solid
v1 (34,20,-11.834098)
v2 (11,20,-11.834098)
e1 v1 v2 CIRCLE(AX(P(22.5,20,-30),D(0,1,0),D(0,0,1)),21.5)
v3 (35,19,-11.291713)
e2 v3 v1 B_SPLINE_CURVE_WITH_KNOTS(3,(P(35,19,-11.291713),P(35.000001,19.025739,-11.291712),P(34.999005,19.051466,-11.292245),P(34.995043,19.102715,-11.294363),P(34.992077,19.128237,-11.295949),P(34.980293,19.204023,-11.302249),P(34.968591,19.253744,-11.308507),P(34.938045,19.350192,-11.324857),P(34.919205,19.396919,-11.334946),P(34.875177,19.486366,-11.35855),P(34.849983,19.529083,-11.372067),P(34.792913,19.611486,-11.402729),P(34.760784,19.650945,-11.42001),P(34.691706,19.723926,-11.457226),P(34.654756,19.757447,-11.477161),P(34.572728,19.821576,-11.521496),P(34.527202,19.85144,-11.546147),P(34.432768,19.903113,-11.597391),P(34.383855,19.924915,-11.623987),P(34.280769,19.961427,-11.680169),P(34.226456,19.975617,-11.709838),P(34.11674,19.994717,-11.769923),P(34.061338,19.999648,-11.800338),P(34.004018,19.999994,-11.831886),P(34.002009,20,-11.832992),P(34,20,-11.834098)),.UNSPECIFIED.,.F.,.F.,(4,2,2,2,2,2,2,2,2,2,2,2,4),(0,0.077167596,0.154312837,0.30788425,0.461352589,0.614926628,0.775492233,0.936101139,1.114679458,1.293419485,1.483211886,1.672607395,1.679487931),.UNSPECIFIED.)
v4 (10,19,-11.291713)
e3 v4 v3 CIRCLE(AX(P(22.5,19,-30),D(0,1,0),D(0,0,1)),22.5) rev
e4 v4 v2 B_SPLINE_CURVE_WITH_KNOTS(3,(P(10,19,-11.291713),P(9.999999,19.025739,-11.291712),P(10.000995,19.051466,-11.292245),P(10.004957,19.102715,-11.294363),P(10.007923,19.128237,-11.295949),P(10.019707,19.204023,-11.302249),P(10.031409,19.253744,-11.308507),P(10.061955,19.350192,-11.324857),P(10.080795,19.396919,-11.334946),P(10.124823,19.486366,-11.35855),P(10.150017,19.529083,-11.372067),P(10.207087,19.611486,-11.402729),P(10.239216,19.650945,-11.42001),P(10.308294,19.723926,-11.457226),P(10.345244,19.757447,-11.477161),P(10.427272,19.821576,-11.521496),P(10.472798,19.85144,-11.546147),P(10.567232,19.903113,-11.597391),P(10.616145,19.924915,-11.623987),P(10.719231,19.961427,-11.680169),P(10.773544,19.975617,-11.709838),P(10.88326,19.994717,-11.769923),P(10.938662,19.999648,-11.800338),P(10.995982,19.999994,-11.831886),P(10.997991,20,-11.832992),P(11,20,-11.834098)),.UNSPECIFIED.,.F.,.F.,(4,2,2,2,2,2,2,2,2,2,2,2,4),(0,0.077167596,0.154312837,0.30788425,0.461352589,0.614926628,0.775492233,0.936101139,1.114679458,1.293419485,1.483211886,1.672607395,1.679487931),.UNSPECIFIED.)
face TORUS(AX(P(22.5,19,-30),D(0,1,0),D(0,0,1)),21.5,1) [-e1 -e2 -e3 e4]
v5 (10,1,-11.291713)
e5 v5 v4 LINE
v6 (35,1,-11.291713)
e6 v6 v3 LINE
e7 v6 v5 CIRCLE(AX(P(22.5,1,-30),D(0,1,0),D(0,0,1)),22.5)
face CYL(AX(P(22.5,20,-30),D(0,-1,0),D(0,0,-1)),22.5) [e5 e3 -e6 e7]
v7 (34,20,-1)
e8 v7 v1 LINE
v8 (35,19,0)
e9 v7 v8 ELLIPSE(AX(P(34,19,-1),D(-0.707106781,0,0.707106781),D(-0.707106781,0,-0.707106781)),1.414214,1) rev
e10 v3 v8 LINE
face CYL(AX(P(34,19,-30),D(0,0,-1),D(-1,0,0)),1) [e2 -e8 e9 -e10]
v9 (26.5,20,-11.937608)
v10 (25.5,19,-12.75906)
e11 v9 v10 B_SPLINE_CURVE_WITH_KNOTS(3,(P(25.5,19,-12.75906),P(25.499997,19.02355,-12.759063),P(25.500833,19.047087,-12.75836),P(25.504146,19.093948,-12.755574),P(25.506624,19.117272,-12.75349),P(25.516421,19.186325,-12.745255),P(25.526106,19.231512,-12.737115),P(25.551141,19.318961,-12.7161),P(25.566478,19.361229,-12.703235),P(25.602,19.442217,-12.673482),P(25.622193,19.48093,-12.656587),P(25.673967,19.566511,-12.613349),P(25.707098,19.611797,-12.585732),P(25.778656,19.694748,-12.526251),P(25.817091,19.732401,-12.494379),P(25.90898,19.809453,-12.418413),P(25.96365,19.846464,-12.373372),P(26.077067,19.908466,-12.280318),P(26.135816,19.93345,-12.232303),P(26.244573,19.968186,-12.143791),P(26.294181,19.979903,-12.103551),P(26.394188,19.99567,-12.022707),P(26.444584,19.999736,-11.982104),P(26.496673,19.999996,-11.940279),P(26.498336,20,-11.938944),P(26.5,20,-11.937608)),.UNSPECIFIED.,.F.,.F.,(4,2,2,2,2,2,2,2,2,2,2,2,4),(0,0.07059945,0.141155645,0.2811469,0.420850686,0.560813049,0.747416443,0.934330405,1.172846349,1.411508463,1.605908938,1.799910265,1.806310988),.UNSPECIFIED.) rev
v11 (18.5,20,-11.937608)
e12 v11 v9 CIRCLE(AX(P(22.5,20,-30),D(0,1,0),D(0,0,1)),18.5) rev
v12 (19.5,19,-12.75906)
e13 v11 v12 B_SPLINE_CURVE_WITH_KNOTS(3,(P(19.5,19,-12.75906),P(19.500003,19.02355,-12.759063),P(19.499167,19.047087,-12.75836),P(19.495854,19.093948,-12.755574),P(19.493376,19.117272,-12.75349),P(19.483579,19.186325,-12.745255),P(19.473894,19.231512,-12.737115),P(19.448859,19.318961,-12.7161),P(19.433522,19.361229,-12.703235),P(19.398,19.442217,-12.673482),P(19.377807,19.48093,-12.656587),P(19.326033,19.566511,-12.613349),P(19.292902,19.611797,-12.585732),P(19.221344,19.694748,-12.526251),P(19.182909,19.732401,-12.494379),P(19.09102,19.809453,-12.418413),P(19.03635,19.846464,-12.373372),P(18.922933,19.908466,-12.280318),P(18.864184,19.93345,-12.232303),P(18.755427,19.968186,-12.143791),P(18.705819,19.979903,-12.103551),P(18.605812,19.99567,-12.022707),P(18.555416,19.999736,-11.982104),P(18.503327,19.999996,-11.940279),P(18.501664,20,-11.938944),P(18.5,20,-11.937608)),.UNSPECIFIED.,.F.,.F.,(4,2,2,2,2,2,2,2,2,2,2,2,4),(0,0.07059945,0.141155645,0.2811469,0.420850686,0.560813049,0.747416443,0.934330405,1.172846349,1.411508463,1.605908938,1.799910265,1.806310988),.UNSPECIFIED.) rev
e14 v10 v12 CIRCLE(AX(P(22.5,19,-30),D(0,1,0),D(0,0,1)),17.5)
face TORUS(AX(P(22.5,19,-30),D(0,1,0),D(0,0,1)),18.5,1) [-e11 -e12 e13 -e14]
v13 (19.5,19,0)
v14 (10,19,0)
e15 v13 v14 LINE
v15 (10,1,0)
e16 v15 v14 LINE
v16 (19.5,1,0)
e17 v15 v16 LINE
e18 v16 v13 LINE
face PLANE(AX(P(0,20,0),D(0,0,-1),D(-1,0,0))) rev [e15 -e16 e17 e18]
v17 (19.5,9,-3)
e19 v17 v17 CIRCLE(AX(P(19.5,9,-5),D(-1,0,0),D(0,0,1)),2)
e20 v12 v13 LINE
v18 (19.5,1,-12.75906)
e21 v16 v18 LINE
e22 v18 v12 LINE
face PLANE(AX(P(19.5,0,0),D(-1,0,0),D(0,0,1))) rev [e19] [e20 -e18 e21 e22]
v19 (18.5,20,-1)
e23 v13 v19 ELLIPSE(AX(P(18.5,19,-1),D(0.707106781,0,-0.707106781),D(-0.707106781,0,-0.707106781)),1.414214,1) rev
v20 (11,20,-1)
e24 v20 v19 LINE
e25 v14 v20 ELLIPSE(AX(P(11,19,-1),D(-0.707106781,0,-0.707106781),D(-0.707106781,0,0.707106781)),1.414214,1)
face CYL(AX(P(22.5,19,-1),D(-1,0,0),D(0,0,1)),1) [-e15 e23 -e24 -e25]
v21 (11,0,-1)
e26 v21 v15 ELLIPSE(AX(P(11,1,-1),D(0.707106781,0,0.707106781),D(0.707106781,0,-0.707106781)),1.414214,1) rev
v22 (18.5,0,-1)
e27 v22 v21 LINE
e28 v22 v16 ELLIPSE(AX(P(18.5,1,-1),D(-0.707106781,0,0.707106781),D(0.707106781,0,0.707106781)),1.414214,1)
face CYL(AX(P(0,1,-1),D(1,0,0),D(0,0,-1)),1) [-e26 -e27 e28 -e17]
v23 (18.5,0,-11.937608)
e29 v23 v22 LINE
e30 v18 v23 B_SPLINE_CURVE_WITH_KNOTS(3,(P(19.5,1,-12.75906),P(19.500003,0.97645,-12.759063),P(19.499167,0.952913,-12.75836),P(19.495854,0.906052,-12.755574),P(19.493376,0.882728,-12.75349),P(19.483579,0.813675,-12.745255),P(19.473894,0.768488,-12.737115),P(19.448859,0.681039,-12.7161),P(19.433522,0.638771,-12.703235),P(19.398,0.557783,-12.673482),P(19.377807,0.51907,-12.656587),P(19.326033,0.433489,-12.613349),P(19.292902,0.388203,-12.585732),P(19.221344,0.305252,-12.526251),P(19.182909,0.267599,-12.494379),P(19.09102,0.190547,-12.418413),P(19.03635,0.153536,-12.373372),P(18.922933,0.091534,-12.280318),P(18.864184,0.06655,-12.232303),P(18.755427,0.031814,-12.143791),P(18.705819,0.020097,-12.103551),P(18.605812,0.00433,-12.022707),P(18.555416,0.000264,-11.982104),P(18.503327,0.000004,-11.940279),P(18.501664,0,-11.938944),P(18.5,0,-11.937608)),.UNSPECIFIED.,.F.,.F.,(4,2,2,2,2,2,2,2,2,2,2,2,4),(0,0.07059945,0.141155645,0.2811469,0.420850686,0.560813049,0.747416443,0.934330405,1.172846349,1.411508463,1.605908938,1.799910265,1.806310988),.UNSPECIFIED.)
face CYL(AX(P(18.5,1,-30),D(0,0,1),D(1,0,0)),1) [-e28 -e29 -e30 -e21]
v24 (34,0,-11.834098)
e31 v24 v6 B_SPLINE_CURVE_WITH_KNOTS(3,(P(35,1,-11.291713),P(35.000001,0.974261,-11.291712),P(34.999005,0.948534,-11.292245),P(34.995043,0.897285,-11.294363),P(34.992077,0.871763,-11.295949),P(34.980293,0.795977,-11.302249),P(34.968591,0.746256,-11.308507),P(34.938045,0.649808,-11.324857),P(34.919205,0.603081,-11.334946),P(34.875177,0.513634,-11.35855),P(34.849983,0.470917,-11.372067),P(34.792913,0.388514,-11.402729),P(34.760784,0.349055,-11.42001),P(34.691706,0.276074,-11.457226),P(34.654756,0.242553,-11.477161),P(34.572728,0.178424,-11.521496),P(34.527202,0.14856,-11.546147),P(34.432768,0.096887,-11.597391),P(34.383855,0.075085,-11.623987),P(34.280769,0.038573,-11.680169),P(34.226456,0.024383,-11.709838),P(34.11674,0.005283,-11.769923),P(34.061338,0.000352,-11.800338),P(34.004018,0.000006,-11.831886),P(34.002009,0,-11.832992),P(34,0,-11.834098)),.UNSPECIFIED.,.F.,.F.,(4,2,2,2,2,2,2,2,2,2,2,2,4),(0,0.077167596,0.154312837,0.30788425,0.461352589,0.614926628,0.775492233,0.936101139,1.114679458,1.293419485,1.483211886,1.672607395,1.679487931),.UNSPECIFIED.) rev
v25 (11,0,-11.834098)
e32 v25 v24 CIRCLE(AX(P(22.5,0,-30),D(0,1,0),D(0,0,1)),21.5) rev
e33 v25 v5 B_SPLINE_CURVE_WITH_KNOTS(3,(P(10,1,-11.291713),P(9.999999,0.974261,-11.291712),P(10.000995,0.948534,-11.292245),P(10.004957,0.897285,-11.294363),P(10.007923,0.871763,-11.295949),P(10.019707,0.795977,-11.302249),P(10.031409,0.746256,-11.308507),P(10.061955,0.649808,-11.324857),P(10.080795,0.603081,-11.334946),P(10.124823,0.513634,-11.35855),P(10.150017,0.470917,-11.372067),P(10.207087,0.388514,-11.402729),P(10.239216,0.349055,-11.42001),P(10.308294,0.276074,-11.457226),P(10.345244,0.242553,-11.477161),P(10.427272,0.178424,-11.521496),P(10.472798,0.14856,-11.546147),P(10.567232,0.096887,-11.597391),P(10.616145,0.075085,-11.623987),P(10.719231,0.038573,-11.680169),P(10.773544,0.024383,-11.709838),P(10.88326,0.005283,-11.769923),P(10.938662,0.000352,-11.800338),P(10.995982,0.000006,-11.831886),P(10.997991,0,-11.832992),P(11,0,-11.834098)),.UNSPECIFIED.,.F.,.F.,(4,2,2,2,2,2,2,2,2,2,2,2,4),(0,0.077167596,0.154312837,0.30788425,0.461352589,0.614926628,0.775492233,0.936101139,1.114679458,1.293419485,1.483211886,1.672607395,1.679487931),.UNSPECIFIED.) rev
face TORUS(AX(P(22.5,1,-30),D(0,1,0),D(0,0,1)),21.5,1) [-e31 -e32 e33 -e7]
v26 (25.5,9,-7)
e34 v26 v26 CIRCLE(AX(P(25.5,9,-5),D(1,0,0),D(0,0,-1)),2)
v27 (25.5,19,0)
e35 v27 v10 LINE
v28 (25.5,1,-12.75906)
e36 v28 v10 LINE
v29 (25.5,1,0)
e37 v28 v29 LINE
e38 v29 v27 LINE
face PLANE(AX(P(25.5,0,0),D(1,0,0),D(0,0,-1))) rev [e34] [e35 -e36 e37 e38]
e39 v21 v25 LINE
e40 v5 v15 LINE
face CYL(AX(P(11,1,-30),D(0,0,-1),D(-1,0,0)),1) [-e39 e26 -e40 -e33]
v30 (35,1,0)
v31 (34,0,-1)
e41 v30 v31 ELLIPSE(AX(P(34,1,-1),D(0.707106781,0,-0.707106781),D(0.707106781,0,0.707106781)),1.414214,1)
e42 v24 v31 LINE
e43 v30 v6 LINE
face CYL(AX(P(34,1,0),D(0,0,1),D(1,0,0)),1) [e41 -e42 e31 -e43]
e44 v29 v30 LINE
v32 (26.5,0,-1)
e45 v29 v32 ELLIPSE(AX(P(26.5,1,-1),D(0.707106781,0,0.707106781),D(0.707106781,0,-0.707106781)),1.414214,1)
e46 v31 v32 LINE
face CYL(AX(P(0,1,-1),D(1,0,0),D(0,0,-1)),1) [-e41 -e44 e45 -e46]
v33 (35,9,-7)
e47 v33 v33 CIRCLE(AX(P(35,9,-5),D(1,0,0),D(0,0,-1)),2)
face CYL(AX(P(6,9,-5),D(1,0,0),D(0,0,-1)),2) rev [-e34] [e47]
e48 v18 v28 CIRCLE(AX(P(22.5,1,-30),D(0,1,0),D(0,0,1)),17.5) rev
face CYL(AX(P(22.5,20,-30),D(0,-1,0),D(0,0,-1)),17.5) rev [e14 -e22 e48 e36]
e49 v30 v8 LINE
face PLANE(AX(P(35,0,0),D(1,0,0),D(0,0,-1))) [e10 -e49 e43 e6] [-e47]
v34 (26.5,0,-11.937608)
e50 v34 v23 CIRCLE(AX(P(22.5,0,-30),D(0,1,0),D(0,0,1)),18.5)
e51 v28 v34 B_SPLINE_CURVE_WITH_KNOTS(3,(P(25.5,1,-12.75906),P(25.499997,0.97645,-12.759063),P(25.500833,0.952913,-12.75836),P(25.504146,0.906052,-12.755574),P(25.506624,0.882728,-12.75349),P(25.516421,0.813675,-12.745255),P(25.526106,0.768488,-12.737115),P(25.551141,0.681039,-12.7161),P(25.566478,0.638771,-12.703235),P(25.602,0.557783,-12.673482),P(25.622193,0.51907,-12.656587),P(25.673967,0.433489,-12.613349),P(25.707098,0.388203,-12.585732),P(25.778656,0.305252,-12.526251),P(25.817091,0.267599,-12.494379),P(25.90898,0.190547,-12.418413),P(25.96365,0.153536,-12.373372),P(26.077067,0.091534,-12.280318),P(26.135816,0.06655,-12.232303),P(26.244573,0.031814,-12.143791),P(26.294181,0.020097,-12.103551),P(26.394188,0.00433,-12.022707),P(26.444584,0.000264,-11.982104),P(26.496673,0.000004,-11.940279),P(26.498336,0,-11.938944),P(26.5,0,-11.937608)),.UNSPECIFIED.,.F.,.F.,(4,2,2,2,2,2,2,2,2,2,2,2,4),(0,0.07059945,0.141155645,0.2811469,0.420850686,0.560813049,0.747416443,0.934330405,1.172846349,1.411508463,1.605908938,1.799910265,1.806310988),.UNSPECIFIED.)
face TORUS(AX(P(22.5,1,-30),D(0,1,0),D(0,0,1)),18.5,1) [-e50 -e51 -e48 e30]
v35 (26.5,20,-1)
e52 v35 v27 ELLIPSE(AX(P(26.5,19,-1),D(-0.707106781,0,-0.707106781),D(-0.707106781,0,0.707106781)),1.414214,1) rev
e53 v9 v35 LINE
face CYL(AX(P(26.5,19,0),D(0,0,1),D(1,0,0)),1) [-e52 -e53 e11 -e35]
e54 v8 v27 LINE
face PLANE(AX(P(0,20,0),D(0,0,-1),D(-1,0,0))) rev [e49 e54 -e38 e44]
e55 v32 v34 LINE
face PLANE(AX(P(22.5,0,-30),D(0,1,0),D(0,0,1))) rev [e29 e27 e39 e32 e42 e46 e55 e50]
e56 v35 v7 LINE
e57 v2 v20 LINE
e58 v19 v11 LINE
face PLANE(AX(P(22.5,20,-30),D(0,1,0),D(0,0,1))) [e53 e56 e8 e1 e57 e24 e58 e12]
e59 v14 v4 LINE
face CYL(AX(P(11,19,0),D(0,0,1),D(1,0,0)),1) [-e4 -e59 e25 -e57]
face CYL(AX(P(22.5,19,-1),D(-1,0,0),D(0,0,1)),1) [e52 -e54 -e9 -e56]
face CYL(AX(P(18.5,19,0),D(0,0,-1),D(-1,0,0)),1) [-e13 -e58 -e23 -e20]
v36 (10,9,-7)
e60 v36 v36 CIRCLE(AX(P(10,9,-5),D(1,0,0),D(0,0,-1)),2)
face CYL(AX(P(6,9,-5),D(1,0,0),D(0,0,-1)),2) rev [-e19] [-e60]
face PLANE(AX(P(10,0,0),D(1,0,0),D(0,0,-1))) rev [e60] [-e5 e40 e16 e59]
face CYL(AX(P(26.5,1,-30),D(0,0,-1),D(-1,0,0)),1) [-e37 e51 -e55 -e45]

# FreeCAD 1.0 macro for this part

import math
import FreeCAD as App
import Part
import Sketcher
from FreeCAD import Vector
Q = App.Units.Quantity


def edges_at(feature, points):
    """Names of the edges that pass closest to the given points."""
    edges = feature.Shape.Edges
    near = lambda p: min(range(len(edges)), key=lambda i: edges[i].distToShape(Part.Vertex(*p))[0])
    return sorted({f"Edge{near(p) + 1}" for p in points})


def add_polygon(sketch, points):
    """Adds a closed chain of lines whose ends are joined by coincident constraints."""
    first, n = sketch.GeometryCount, len(points)
    for a, b in zip(points, points[1:] + points[:1]):
        sketch.addGeometry(Part.LineSegment(App.Vector(*a, 0), App.Vector(*b, 0)), False)
    for i in range(n):
        sketch.addConstraint(Sketcher.Constraint("Coincident", first + i, 2, first + (i + 1) % n, 1))

doc = App.newDocument("Part")
body = doc.addObject("PartDesign::Body", "Body")

sketch1 = doc.addObject("Sketcher::SketchObject", "Sketch")
body.addObject(sketch1)
sketch1.AttachmentSupport = (doc.XZ_Plane, [""])
sketch1.MapMode = "FlatFace"
sketch1.addGeometry([
    Part.LineSegment(Vector(0, -30, 0), Vector(0, 0, 0)),
    Part.LineSegment(Vector(0, 0, 0), Vector(45, 0, 0)),
    Part.LineSegment(Vector(45, 0, 0), Vector(45, -30, 0)),
    Part.ArcOfCircle(Part.Circle(Vector(22.5, -30, 0), Vector(0, 0, 1), 22.5), math.radians(180), math.radians(360)),
    Part.Circle(Vector(22.5, -30, 0), Vector(0, 0, 1), 17.5),
], False)
sketch1.addConstraint([
    Sketcher.Constraint("Coincident", 0, 2, 1, 1),
    Sketcher.Constraint("Coincident", 1, 2, 2, 1),
    Sketcher.Constraint("Tangent", 2, 2, 3, 2),
    Sketcher.Constraint("Tangent", 3, 1, 0, 1),
    Sketcher.Constraint("Vertical", 0),
    Sketcher.Constraint("Horizontal", 1),
    Sketcher.Constraint("Vertical", 2),
    Sketcher.Constraint("Coincident", 0, 2, -1, 1),
    Sketcher.Constraint("Coincident", 4, 3, 3, 3),
    Sketcher.Constraint("Diameter", 4, Q("35 mm")),
    Sketcher.Constraint("Radius", 3, Q("22.5 mm")),
    Sketcher.Constraint("DistanceY", 0, 1, 0, 2, Q("30 mm")),
])
pad1 = doc.addObject("PartDesign::Pad", "Pad")
body.addObject(pad1)
pad1.Profile = sketch1
pad1.Length = 20
pad1.Reversed = True

sketch2 = doc.addObject("Sketcher::SketchObject", "Sketch001")
body.addObject(sketch2)
sketch2.AttachmentSupport = (doc.XZ_Plane, [""])
sketch2.MapMode = "FlatFace"
sketch2.AttachmentOffset = App.Placement(Vector(0, 0, -20), App.Rotation())
add_polygon(sketch2, [(19.5, -12.75906), (19.5, 0), (25.5, 0), (25.5, -12.75906)])
sketch2.addConstraint([
    Sketcher.Constraint("Vertical", 0),
    Sketcher.Constraint("Horizontal", 1),
    Sketcher.Constraint("Vertical", 2),
    Sketcher.Constraint("Horizontal", 3),
    Sketcher.Constraint("PointOnObject", 0, 2, -1),
    Sketcher.Constraint("DistanceX", 1, 1, 1, 2, Q("6 mm")),
    Sketcher.Constraint("DistanceX", -1, 1, 0, 2, Q("19.5 mm")),
    Sketcher.Constraint("DistanceY", 0, 1, 0, 2, Q("12.75906 mm")),
])
pocket1 = doc.addObject("PartDesign::Pocket", "Pocket")
body.addObject(pocket1)
pocket1.Profile = sketch2
pocket1.Length = 20
pocket1.Reversed = True

sketch3 = doc.addObject("Sketcher::SketchObject", "Sketch002")
body.addObject(sketch3)
sketch3.AttachmentSupport = (doc.XZ_Plane, [""])
sketch3.MapMode = "FlatFace"
sketch3.AttachmentOffset = App.Placement(Vector(0, 0, -20), App.Rotation())
sketch3.addGeometry([
    Part.LineSegment(Vector(10, 0, 0), Vector(10, -11.291713, 0)),
    Part.ArcOfCircle(Part.Circle(Vector(22.5, -30, 0), Vector(0, 0, 1), 22.5), math.radians(123.748989), math.radians(180)),
    Part.LineSegment(Vector(0, -30, 0), Vector(0, 0, 0)),
    Part.LineSegment(Vector(0, 0, 0), Vector(10, 0, 0)),
    Part.LineSegment(Vector(45, 0, 0), Vector(45, -30, 0)),
    Part.ArcOfCircle(Part.Circle(Vector(22.5, -30, 0), Vector(0, 0, 1), 22.5), math.radians(0), math.radians(56.251011)),
    Part.LineSegment(Vector(35, -11.291713, 0), Vector(35, 0, 0)),
    Part.LineSegment(Vector(35, 0, 0), Vector(45, 0, 0)),
], False)
sketch3.addConstraint([
    Sketcher.Constraint("Coincident", 0, 2, 1, 1),
    Sketcher.Constraint("Tangent", 1, 2, 2, 1),
    Sketcher.Constraint("Coincident", 2, 2, 3, 1),
    Sketcher.Constraint("Coincident", 3, 2, 0, 1),
    Sketcher.Constraint("Tangent", 4, 2, 5, 1),
    Sketcher.Constraint("Coincident", 5, 2, 6, 1),
    Sketcher.Constraint("Coincident", 6, 2, 7, 1),
    Sketcher.Constraint("Coincident", 7, 2, 4, 1),
    Sketcher.Constraint("Vertical", 0),
    Sketcher.Constraint("Vertical", 2),
    Sketcher.Constraint("Horizontal", 3),
    Sketcher.Constraint("Vertical", 4),
    Sketcher.Constraint("Vertical", 6),
    Sketcher.Constraint("Horizontal", 7),
    Sketcher.Constraint("Coincident", 2, 2, -1, 1),
    Sketcher.Constraint("Coincident", 5, 3, 1, 3),
    Sketcher.Constraint("Equal", 1, 5),
    Sketcher.Constraint("PointOnObject", 6, 2, -1),
    Sketcher.Constraint("Horizontal", 0, 2, 5, 2),
    Sketcher.Constraint("Radius", 1, Q("22.5 mm")),
    Sketcher.Constraint("DistanceX", 3, 1, 3, 2, Q("10 mm")),
    Sketcher.Constraint("DistanceY", 2, 1, 2, 2, Q("30 mm")),
])
pocket2 = doc.addObject("PartDesign::Pocket", "Pocket001")
body.addObject(pocket2)
pocket2.Profile = sketch3
pocket2.Length = 20
pocket2.Reversed = True
doc.recompute()

fillet = doc.addObject("PartDesign::Fillet", "Fillet")
body.addObject(fillet)
fillet.Base = (pocket2, edges_at(pocket2, [
    (22.5, 0, -47.5),
    (22.5, 20, -47.5),
    (30.25, 0, 0),
    (30.25, 20, 0),
    (19.5, 0, -6.38),
    (25.5, 0, -6.38),
    (25.5, 20, -6.38),
    (19.5, 20, -6.38),
    (14.75, 0, 0),
    (14.75, 20, 0),
    (10, 0, -5.646),
    (10, 20, -5.646),
    (22.5, 20, -52.5),
    (35, 20, -5.646),
    (35, 0, -5.646),
    (22.5, 0, -52.5),
]))
fillet.Radius = 1

sketch4 = doc.addObject("Sketcher::SketchObject", "Sketch003")
body.addObject(sketch4)
sketch4.AttachmentSupport = (doc.YZ_Plane, [""])
sketch4.MapMode = "FlatFace"
sketch4.AttachmentOffset = App.Placement(Vector(0, 0, 35), App.Rotation())
sketch4.addGeometry(Part.Circle(Vector(9, -5, 0), Vector(0, 0, 1), 2), False)
sketch4.addConstraint([
    Sketcher.Constraint("Diameter", 0, Q("4 mm")),
    Sketcher.Constraint("DistanceX", -1, 1, 0, 3, Q("9 mm")),
    Sketcher.Constraint("DistanceY", 0, 3, -1, 1, Q("5 mm")),
])
pocket3 = doc.addObject("PartDesign::Pocket", "Pocket002")
body.addObject(pocket3)
pocket3.Profile = sketch4
pocket3.Length = 29

doc.recompute()
